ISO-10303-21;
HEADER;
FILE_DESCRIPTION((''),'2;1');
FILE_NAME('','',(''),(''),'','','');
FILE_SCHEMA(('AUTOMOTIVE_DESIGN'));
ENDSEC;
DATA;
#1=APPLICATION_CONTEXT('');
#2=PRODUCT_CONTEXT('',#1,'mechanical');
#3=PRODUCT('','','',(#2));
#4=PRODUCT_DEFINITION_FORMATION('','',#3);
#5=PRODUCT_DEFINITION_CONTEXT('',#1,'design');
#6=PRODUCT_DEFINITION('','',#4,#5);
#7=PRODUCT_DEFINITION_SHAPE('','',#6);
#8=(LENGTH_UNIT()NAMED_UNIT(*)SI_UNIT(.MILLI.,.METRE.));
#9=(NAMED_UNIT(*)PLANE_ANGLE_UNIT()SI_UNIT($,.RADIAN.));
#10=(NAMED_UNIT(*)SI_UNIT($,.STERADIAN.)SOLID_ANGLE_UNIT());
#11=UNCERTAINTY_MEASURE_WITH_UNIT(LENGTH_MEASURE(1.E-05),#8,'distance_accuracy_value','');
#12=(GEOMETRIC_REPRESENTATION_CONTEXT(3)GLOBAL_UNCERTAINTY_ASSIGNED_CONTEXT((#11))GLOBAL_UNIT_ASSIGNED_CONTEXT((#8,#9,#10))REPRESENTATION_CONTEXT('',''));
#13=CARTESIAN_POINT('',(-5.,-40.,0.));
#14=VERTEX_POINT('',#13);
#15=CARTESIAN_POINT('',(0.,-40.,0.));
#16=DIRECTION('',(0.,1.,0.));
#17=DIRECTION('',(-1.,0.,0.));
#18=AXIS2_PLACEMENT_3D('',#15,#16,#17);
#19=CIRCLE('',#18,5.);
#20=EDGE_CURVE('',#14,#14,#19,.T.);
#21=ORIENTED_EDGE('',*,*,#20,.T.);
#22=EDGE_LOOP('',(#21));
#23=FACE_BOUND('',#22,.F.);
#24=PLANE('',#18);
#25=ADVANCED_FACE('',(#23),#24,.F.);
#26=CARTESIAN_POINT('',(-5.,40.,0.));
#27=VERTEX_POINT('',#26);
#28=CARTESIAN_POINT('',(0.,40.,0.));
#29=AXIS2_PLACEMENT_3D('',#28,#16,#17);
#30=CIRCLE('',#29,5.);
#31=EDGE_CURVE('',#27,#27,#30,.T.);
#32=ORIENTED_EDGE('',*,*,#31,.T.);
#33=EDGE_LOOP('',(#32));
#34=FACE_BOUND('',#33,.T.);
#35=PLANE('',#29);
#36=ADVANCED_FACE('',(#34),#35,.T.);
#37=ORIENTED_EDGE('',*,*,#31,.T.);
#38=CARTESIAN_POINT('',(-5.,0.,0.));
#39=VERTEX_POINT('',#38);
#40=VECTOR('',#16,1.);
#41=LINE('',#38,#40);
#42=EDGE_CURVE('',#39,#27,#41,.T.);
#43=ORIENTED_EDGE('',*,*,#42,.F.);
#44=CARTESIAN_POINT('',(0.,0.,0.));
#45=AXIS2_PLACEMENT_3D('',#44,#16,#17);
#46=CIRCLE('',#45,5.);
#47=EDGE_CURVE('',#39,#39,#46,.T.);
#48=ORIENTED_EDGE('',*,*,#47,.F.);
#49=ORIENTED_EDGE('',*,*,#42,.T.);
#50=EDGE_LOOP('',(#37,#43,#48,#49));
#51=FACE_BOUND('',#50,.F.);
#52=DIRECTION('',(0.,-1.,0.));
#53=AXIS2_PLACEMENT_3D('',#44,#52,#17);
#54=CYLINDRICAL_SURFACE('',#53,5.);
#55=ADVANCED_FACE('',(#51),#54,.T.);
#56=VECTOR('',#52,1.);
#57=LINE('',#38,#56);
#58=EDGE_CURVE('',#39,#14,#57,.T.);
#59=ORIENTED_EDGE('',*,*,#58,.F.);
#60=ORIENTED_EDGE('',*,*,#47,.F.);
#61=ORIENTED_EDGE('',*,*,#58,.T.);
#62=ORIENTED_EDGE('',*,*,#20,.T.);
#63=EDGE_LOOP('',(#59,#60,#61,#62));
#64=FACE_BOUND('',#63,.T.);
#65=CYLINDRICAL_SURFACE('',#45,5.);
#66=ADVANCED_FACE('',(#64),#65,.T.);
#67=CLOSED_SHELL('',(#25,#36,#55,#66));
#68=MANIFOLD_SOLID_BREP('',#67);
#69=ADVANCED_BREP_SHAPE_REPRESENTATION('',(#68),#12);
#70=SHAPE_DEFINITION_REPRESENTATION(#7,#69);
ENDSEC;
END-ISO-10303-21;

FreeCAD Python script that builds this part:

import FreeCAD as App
import Part
import Sketcher

V = App.Vector
Q = App.Units.Quantity

doc = App.newDocument("Part")
body = doc.addObject("PartDesign::Body", "Body")

# Sketch on XZ plane
sketch1 = body.newObject("Sketcher::SketchObject", "Sketch")
sketch1.AttachmentSupport = (doc.getObject("XZ_Plane"), [""])
sketch1.MapMode = "FlatFace"
sketch1.addGeometry(Part.Circle(V(0, 0, 0), V(0, 0, 1), 5), False)
sketch1.addConstraint(Sketcher.Constraint("Coincident", 0, 3, -1, 1))
sketch1.addConstraint(Sketcher.Constraint("Diameter", 0, Q("10 mm")))
pad1 = body.newObject("PartDesign::Pad", "Pad")
pad1.Profile = sketch1
pad1.Length = 80
pad1.Midplane = True

doc.recompute()
